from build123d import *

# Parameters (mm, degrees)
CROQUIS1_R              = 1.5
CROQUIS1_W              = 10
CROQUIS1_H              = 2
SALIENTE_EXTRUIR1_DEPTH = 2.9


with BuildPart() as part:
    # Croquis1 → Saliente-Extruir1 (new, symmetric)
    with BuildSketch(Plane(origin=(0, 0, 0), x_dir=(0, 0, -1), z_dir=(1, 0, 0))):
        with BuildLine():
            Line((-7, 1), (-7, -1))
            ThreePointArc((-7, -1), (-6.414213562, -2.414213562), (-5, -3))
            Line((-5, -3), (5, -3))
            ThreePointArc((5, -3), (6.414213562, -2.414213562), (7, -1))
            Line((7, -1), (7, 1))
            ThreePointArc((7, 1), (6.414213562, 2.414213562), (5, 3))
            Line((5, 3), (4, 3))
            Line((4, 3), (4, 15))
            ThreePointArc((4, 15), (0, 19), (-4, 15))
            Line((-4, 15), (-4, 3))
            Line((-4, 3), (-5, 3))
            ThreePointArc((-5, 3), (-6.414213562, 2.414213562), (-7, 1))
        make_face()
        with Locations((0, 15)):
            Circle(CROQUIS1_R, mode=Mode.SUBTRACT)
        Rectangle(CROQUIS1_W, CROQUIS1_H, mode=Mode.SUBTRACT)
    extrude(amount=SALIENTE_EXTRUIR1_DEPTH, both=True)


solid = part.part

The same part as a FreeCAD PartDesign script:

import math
import FreeCAD as App
import Part
import Sketcher
Q = App.Units.Quantity


def add_polygon(sketch, points):
    """Adds a closed chain of lines whose ends are joined by coincident constraints."""
    first, n = sketch.GeometryCount, len(points)
    for a, b in zip(points, points[1:] + points[:1]):
        sketch.addGeometry(Part.LineSegment(App.Vector(*a, 0), App.Vector(*b, 0)), False)
    for i in range(n):
        sketch.addConstraint(Sketcher.Constraint("Coincident", first + i, 2, first + (i + 1) % n, 1))

doc = App.newDocument("Part")
params = doc.addObject("Spreadsheet::Sheet", "Params")
for row, (alias, value) in enumerate([
    ("sketch1_diameter", "3 mm"),
    ("sketch1_radius", "2 mm"),
    ("sketch1_radius2", "4 mm"),
    ("sketch1_width", "2 mm"),
    ("sketch1_width2", "12 mm"),
    ("pad1_length", "5.8 mm"),
], start=1):
    params.set(f"A{row}", alias)
    params.set(f"B{row}", "=" + value)
    params.setAlias(f"B{row}", alias)

body = doc.addObject("PartDesign::Body", "Body")

sketch1 = doc.addObject("Sketcher::SketchObject", "Sketch")
body.addObject(sketch1)
sketch1.AttachmentSupport = (doc.YZ_Plane, [""])
sketch1.MapMode = "FlatFace"
sketch1.addGeometry(Part.LineSegment(App.Vector(1, 7, 0), App.Vector(-1, 7, 0)), False)
sketch1.addGeometry(Part.ArcOfCircle(Part.Circle(App.Vector(-1, 5, 0), App.Vector(0, 0, 1), 2), math.radians(90), math.radians(180)), False)
sketch1.addGeometry(Part.LineSegment(App.Vector(-3, 5, 0), App.Vector(-3, -5, 0)), False)
sketch1.addGeometry(Part.ArcOfCircle(Part.Circle(App.Vector(-1, -5, 0), App.Vector(0, 0, 1), 2), math.radians(-180), math.radians(-90)), False)
sketch1.addGeometry(Part.LineSegment(App.Vector(-1, -7, 0), App.Vector(1, -7, 0)), False)
sketch1.addGeometry(Part.ArcOfCircle(Part.Circle(App.Vector(1, -5, 0), App.Vector(0, 0, 1), 2), math.radians(-90), math.radians(0)), False)
sketch1.addGeometry(Part.LineSegment(App.Vector(3, -5, 0), App.Vector(3, -4, 0)), False)
sketch1.addGeometry(Part.LineSegment(App.Vector(3, -4, 0), App.Vector(15, -4, 0)), False)
sketch1.addGeometry(Part.ArcOfCircle(Part.Circle(App.Vector(15, 0, 0), App.Vector(0, 0, 1), 4), math.radians(-90), math.radians(90)), False)
sketch1.addGeometry(Part.LineSegment(App.Vector(15, 4, 0), App.Vector(3, 4, 0)), False)
sketch1.addGeometry(Part.LineSegment(App.Vector(3, 4, 0), App.Vector(3, 5, 0)), False)
sketch1.addGeometry(Part.ArcOfCircle(Part.Circle(App.Vector(1, 5, 0), App.Vector(0, 0, 1), 2), math.radians(0), math.radians(90)), False)
add_polygon(sketch1, [(-1, -5), (-1, 5), (1, 5), (1, -5)])
sketch1.addGeometry(Part.Circle(App.Vector(15, 0, 0), App.Vector(0, 0, 1), 1.5), False)
sketch1.addConstraint(Sketcher.Constraint("Tangent", 0, 2, 1, 1))
sketch1.addConstraint(Sketcher.Constraint("Tangent", 1, 2, 2, 1))
sketch1.addConstraint(Sketcher.Constraint("Tangent", 2, 2, 3, 1))
sketch1.addConstraint(Sketcher.Constraint("Tangent", 3, 2, 4, 1))
sketch1.addConstraint(Sketcher.Constraint("Tangent", 4, 2, 5, 1))
sketch1.addConstraint(Sketcher.Constraint("Tangent", 5, 2, 6, 1))
sketch1.addConstraint(Sketcher.Constraint("Coincident", 6, 2, 7, 1))
sketch1.addConstraint(Sketcher.Constraint("Tangent", 7, 2, 8, 1))
sketch1.addConstraint(Sketcher.Constraint("Tangent", 8, 2, 9, 1))
sketch1.addConstraint(Sketcher.Constraint("Coincident", 9, 2, 10, 1))
sketch1.addConstraint(Sketcher.Constraint("Tangent", 10, 2, 11, 1))
sketch1.addConstraint(Sketcher.Constraint("Tangent", 11, 2, 0, 1))
sketch1.addConstraint(Sketcher.Constraint("Horizontal", 0))
sketch1.addConstraint(Sketcher.Constraint("Vertical", 2))
sketch1.addConstraint(Sketcher.Constraint("Horizontal", 4))
sketch1.addConstraint(Sketcher.Constraint("Vertical", 6))
sketch1.addConstraint(Sketcher.Constraint("Horizontal", 7))
sketch1.addConstraint(Sketcher.Constraint("Horizontal", 9))
sketch1.addConstraint(Sketcher.Constraint("Vertical", 10))
sketch1.addConstraint(Sketcher.Constraint("Vertical", 12))
sketch1.addConstraint(Sketcher.Constraint("Horizontal", 13))
sketch1.addConstraint(Sketcher.Constraint("Vertical", 14))
sketch1.addConstraint(Sketcher.Constraint("Horizontal", 15))
sketch1.addConstraint(Sketcher.Constraint("Coincident", 16, 3, 8, 3))
sketch1.addConstraint(Sketcher.Constraint("Coincident", 12, 2, 1, 3))
sketch1.addConstraint(Sketcher.Constraint("Coincident", 13, 2, 11, 3))
sketch1.addConstraint(Sketcher.Constraint("Coincident", 14, 2, 5, 3))
sketch1.addConstraint(Sketcher.Constraint("Coincident", 15, 2, 3, 3))
sketch1.addConstraint(Sketcher.Constraint("Symmetric", 1, 3, 5, 3, -1, 1))
sketch1.addConstraint(Sketcher.Constraint("PointOnObject", 8, 3, -1))
sketch1.addConstraint(Sketcher.Constraint("Diameter", 16, Q("3 mm")))
sketch1.addConstraint(Sketcher.Constraint("Radius", 1, Q("2 mm")))
sketch1.addConstraint(Sketcher.Constraint("Radius", 8, Q("4 mm")))
sketch1.addConstraint(Sketcher.Constraint("DistanceX", 0, 2, 0, 1, Q("2 mm")))
sketch1.addConstraint(Sketcher.Constraint("DistanceX", 7, 1, 7, 2, Q("12 mm")))
sketch1.addConstraint(Sketcher.Constraint("DistanceY", 2, 2, 2, 1, Q("10 mm")))
sketch1.setExpression("Constraints[34]", "Params.sketch1_diameter")
sketch1.setExpression("Constraints[35]", "Params.sketch1_radius")
sketch1.setExpression("Constraints[36]", "Params.sketch1_radius2")
sketch1.setExpression("Constraints[37]", "Params.sketch1_width")
sketch1.setExpression("Constraints[38]", "Params.sketch1_width2")
pad1 = doc.addObject("PartDesign::Pad", "Pad")
body.addObject(pad1)
pad1.Profile = sketch1
pad1.setExpression("Length", "Params.pad1_length")
pad1.Midplane = True

doc.recompute()
